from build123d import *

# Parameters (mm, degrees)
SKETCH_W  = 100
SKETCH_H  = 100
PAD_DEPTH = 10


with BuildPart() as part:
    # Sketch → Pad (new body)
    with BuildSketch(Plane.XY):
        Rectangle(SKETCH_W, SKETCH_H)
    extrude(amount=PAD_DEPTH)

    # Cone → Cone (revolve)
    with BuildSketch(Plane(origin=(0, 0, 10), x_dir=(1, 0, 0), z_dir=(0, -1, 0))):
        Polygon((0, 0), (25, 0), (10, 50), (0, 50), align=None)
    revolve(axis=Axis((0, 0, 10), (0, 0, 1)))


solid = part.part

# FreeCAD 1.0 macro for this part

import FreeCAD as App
import Part
import Sketcher

V = App.Vector


def add_polygon(sketch, points):
    """Adds a closed chain of lines whose ends are joined by coincident constraints."""
    first, n = sketch.GeometryCount, len(points)
    for a, b in zip(points, points[1:] + points[:1]):
        sketch.addGeometry(Part.LineSegment(App.Vector(*a, 0), App.Vector(*b, 0)), False)
    for i in range(n):
        sketch.addConstraint(Sketcher.Constraint("Coincident", first + i, 2, first + (i + 1) % n, 1))

doc = App.newDocument("Part")
body = doc.addObject("PartDesign::Body", "Body")

# Sketch on XY plane
sketch1 = body.newObject("Sketcher::SketchObject", "Sketch")
sketch1.AttachmentSupport = (doc.getObject("XY_Plane"), [""])
sketch1.MapMode = "FlatFace"
add_polygon(sketch1, [(-50, 50), (-50, -50), (50, -50), (50, 50)])  # lines 0-3
sketch1.addConstraint(Sketcher.Constraint("Vertical", 0))
sketch1.addConstraint(Sketcher.Constraint("Horizontal", 1))
sketch1.addConstraint(Sketcher.Constraint("Vertical", 2))
sketch1.addConstraint(Sketcher.Constraint("Horizontal", 3))
sketch1.addConstraint(Sketcher.Constraint("Symmetric", 0, 2, 2, 2, -1, 1))
sketch1.addConstraint(Sketcher.Constraint("Equal", 3, 0))
sketch1.addConstraint(Sketcher.Constraint("DistanceX", 1, 1, 1, 2, 100.0))
pad1 = body.newObject("PartDesign::Pad", "Pad")
pad1.Profile = sketch1
pad1.Length = 10

# Sketch on XZ plane
sketch2 = body.newObject("Sketcher::SketchObject", "Sketch001")
sketch2.AttachmentSupport = (doc.getObject("XZ_Plane"), [""])
sketch2.MapMode = "FlatFace"
add_polygon(sketch2, [(0, 10), (25, 10), (10, 60), (0, 60)])  # lines 0-3
sketch2.addConstraint(Sketcher.Constraint("Horizontal", 0))
sketch2.addConstraint(Sketcher.Constraint("Horizontal", 2))
sketch2.addConstraint(Sketcher.Constraint("Vertical", 3))
sketch2.addConstraint(Sketcher.Constraint("PointOnObject", 2, 2, -2))
sketch2.addConstraint(Sketcher.Constraint("DistanceX", 0, 1, 0, 2, 25.0))
sketch2.addConstraint(Sketcher.Constraint("DistanceX", 2, 2, 2, 1, 10.0))
sketch2.addConstraint(Sketcher.Constraint("DistanceY", 3, 2, 3, 1, 50.0))
sketch2.addConstraint(Sketcher.Constraint("DistanceY", -1, 1, 0, 2, 10.0))
revolution = body.newObject("PartDesign::Revolution", "Revolution")
revolution.Profile = sketch2
revolution.ReferenceAxis = (sketch2, ["V_Axis"])
revolution.Angle = 360

doc.recompute()
